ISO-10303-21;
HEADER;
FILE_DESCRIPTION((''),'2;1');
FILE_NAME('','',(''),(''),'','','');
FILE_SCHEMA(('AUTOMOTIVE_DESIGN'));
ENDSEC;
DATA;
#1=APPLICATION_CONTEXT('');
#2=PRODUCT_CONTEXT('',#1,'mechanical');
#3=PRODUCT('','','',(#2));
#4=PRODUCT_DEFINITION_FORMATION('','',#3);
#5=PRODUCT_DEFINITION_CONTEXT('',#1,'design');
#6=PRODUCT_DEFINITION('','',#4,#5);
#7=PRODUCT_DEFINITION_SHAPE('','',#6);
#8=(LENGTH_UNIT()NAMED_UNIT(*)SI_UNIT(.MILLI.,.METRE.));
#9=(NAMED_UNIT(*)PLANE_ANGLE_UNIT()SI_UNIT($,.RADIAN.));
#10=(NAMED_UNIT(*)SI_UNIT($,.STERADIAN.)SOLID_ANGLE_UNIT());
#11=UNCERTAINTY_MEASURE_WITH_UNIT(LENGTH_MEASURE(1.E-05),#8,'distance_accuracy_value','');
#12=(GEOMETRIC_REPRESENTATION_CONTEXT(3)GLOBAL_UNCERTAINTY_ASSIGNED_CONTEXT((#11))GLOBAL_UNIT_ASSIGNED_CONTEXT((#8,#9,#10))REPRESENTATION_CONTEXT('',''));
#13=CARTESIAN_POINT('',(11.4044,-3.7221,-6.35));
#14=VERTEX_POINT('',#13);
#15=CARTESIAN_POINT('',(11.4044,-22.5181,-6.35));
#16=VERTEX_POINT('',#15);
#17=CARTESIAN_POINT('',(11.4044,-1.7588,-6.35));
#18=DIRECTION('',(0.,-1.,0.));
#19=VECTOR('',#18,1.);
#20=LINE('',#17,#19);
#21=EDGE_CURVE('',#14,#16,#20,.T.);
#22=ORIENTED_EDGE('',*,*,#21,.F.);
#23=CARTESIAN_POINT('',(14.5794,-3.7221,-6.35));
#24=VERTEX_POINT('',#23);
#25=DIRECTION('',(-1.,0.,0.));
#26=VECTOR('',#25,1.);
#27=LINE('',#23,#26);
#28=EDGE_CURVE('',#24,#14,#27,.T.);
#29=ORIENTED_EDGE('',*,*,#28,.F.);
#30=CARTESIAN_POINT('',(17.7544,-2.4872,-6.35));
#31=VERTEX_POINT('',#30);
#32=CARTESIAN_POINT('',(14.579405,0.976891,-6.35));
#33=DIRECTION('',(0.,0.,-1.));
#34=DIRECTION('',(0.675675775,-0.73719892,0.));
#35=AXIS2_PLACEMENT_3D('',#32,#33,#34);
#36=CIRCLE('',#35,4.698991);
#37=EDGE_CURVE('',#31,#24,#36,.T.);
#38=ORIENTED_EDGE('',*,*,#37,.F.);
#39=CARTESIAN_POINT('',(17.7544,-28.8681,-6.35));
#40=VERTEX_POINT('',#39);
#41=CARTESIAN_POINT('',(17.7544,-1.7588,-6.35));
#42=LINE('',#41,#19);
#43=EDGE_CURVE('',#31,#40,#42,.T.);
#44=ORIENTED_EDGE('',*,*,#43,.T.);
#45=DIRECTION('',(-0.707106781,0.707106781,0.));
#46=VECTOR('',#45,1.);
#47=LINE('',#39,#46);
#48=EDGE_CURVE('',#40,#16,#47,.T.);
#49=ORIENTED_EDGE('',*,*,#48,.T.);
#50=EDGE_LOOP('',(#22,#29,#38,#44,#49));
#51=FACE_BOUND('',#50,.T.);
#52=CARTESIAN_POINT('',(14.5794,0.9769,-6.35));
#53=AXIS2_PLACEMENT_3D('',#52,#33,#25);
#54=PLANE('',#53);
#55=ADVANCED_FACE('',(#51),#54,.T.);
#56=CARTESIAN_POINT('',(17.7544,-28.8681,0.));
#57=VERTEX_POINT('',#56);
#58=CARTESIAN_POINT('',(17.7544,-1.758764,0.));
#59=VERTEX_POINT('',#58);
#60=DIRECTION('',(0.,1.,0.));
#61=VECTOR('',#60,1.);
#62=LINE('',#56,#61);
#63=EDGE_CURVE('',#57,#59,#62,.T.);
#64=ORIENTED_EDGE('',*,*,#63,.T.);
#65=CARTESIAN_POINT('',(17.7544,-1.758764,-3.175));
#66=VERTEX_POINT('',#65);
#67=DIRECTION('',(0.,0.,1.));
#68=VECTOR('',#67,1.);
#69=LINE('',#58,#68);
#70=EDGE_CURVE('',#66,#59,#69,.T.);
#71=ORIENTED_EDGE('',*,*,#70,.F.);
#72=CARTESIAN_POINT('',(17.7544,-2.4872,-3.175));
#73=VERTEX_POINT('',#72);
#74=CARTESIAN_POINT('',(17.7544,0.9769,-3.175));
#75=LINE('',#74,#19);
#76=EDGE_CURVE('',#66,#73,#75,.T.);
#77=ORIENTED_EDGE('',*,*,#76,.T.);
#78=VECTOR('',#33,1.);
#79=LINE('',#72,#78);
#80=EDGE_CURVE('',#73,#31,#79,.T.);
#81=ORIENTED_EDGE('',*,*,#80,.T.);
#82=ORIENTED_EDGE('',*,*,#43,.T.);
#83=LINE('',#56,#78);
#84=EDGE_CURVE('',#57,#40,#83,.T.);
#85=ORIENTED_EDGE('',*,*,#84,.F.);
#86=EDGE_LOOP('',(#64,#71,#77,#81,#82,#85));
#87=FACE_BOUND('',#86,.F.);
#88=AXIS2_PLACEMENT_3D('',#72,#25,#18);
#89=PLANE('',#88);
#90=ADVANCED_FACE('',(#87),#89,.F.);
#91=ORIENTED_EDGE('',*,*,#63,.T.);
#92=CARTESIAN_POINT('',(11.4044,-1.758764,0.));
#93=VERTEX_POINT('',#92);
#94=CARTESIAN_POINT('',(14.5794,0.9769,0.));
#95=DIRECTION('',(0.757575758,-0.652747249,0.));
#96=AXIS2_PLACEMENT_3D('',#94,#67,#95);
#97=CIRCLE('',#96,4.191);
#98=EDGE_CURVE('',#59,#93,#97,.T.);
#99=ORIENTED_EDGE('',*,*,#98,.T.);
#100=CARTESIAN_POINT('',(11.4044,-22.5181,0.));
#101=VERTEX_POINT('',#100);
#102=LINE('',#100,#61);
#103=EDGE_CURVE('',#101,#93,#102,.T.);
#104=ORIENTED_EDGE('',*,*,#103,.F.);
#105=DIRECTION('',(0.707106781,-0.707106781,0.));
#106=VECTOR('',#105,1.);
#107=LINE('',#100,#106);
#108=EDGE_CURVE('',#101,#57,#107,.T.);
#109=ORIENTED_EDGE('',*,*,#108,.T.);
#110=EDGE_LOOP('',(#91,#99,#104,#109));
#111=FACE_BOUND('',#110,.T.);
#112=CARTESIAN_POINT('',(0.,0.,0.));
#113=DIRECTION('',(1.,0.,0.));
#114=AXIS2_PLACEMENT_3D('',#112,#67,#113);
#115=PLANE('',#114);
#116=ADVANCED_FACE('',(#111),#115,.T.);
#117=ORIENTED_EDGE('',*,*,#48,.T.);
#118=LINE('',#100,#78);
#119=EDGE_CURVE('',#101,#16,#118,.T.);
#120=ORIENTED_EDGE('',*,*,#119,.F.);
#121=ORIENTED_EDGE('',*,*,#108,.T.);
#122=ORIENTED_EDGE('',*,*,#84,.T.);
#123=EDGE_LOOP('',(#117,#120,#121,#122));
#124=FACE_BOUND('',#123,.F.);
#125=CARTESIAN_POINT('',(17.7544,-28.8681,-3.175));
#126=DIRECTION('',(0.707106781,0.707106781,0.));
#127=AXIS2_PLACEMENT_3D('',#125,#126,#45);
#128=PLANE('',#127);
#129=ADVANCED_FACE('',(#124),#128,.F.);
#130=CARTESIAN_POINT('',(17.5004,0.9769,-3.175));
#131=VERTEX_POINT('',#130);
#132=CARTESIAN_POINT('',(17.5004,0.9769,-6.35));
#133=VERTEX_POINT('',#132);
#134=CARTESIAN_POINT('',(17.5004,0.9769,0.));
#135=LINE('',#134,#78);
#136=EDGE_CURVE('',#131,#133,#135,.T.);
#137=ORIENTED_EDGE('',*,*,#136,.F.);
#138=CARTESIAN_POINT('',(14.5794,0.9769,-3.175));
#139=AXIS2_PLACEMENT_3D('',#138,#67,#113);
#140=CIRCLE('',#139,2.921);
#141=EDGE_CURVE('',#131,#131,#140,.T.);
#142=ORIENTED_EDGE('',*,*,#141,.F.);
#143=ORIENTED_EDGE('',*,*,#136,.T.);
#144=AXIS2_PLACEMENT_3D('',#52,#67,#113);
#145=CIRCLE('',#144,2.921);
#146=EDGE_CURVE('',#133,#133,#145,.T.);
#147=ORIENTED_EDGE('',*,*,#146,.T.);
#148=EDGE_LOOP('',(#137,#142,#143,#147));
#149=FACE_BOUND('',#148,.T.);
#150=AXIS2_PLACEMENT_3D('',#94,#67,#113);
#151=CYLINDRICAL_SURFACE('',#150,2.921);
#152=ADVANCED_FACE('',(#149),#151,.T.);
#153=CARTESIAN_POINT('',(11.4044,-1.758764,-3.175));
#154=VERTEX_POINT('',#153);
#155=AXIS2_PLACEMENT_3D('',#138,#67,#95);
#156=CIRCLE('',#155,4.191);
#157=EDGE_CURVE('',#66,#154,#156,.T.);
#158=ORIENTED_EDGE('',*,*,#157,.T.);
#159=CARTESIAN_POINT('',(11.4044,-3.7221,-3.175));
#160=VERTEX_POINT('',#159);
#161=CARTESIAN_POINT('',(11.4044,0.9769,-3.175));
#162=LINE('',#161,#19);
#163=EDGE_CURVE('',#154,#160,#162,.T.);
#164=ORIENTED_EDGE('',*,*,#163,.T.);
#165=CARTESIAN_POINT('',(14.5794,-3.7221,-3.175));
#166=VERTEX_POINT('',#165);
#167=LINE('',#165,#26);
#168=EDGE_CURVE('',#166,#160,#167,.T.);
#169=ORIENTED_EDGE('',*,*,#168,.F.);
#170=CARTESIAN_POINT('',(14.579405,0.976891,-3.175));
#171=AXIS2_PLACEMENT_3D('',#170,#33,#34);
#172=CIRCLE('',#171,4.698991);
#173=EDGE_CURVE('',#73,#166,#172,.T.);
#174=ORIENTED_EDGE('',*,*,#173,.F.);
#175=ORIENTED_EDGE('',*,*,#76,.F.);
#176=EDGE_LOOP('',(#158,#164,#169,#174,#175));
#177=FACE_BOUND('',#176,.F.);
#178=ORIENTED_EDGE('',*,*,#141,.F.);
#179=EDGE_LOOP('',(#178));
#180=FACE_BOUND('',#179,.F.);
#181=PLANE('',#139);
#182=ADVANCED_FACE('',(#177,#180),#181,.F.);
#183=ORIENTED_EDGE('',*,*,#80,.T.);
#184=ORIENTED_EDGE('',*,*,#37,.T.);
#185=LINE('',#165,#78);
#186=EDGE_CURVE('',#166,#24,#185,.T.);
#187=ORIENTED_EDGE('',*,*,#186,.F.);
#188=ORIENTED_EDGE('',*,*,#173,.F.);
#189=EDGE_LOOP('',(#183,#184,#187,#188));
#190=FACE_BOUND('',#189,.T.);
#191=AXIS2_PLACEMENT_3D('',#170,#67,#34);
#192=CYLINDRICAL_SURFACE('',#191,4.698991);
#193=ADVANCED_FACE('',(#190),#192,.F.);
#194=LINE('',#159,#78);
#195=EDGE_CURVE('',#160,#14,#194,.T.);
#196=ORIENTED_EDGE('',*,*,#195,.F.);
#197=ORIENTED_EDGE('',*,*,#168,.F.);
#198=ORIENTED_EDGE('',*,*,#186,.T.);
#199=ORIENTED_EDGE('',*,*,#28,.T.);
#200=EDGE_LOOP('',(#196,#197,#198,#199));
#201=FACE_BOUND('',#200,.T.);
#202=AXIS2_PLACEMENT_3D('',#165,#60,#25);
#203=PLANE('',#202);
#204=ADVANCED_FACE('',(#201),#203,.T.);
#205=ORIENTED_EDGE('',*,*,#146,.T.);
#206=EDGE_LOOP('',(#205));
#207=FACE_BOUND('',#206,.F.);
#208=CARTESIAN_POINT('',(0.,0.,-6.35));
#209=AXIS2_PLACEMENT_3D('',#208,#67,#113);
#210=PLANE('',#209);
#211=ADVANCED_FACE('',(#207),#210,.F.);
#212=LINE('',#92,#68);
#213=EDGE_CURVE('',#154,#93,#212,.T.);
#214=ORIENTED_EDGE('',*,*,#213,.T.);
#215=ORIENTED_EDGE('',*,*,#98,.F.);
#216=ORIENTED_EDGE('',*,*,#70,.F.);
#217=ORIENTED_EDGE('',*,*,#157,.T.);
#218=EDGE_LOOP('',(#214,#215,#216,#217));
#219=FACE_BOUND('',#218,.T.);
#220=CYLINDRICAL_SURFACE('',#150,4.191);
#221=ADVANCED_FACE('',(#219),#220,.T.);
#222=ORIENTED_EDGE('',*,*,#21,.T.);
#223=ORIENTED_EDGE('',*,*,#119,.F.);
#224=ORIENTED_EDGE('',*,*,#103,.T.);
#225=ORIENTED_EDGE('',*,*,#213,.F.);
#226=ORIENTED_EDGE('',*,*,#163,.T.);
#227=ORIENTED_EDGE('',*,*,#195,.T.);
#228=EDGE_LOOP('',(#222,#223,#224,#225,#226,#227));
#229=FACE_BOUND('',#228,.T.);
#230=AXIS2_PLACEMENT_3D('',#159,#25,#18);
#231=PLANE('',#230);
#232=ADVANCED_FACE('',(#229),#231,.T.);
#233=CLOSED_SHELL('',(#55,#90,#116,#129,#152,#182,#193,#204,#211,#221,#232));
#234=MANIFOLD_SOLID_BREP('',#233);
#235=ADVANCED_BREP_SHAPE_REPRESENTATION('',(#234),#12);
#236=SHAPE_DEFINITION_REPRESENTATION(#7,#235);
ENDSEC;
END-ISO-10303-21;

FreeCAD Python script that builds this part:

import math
import FreeCAD as App
import Part
import Sketcher
Q = App.Units.Quantity

doc = App.newDocument("Part")
body = doc.addObject("PartDesign::Body", "Body")

# Sketch on XY plane
sketch1 = body.newObject("Sketcher::SketchObject", "Sketch")
sketch1.AttachmentSupport = (doc.getObject("XY_Plane"), [""])
sketch1.MapMode = "FlatFace"
sketch1.addGeometry(Part.Circle(App.Vector(14.5794, 0.9769, 0), App.Vector(0, 0, 1), 2.921), False)
sketch1.addConstraint([
    Sketcher.Constraint("Diameter", 0, Q("0.23 in")),
    Sketcher.Constraint("DistanceX", -1, 1, 0, 3, Q("0.574 in")),
    Sketcher.Constraint("DistanceY", -1, 1, 0, 3, 0.977),
])
pad1 = body.newObject("PartDesign::Pad", "Pad")
pad1.Profile = sketch1
pad1.Length = Q("0.25 in")
pad1.Reversed = True

# Sketch on XY plane
sketch2 = body.newObject("Sketcher::SketchObject", "Sketch001")
sketch2.AttachmentSupport = (doc.getObject("XY_Plane"), [""])
sketch2.MapMode = "FlatFace"
sketch2.addGeometry(Part.Circle(App.Vector(14.5794, 0.9769, 0), App.Vector(0, 0, 1), 4.191), False)
sketch2.addConstraint([
    Sketcher.Constraint("Diameter", 0, Q("0.33 in")),
    Sketcher.Constraint("DistanceX", -1, 1, 0, 3, Q("0.574 in")),
    Sketcher.Constraint("DistanceY", -1, 1, 0, 3, 0.977),
])
pad2 = body.newObject("PartDesign::Pad", "Pad001")
pad2.Profile = sketch2
pad2.Length = Q("0.125 in")
pad2.Reversed = True

# Sketch on XY plane
sketch3 = body.newObject("Sketcher::SketchObject", "Sketch002")
sketch3.AttachmentSupport = (doc.getObject("XY_Plane"), [""])
sketch3.MapMode = "FlatFace"
sketch3.addGeometry([
    Part.LineSegment(App.Vector(11.4044, 0.9769, 0), App.Vector(11.4044, -22.5181, 0)),
    Part.LineSegment(App.Vector(11.4044, -22.5181, 0), App.Vector(17.7544, -28.8681, 0)),
    Part.LineSegment(App.Vector(17.7544, -28.8681, 0), App.Vector(17.7544, 0.9769, 0)),
    Part.ArcOfCircle(Part.Circle(App.Vector(14.5794, 0.9769, 0), App.Vector(0, 0, 1), 3.175), math.radians(180), math.radians(360)),
], False)
sketch3.addConstraint([
    Sketcher.Constraint("Coincident", 0, 2, 1, 1),
    Sketcher.Constraint("Coincident", 1, 2, 2, 1),
    Sketcher.Constraint("Tangent", 2, 2, 3, 2),
    Sketcher.Constraint("Tangent", 3, 1, 0, 1),
    Sketcher.Constraint("Vertical", 0),
    Sketcher.Constraint("Vertical", 2),
    Sketcher.Constraint("Radius", 3, Q("0.125 in")),
    Sketcher.Constraint("DistanceY", 1, 2, 0, 2, Q("0.25 in")),
    Sketcher.Constraint("DistanceY", 0, 2, 0, 1, Q("0.925 in")),
    Sketcher.Constraint("DistanceX", -1, 1, 3, 3, Q("0.574 in")),
    Sketcher.Constraint("DistanceY", -1, 1, 3, 3, 0.977),
])
pad3 = body.newObject("PartDesign::Pad", "Pad002")
pad3.Profile = sketch3
pad3.Length = Q("0.125 in")
pad3.Reversed = True

# Sketch on XY plane
sketch4 = body.newObject("Sketcher::SketchObject", "Sketch003")
sketch4.AttachmentSupport = (doc.getObject("XY_Plane"), [""])
sketch4.MapMode = "FlatFace"
sketch4.AttachmentOffset = App.Placement(App.Vector(0, 0, -0.125 * 25.4), App.Rotation())
sketch4.addGeometry([
    Part.ArcOfCircle(Part.Circle(App.Vector(14.5794, 0.9769, 0), App.Vector(0, 0, 1), 4.699), math.radians(-90), math.radians(-47.493373)),  # 0
    Part.LineSegment(App.Vector(17.7544, -2.4872, 0), App.Vector(17.7544, -28.8681, 0)),  # 1
    Part.LineSegment(App.Vector(17.7544, -28.8681, 0), App.Vector(11.4044, -22.5181, 0)),  # 2
    Part.LineSegment(App.Vector(11.4044, -22.5181, 0), App.Vector(11.4044, -3.7221, 0)),  # 3
    Part.LineSegment(App.Vector(11.4044, -3.7221, 0), App.Vector(14.5794, -3.7221, 0)),  # 4
], False)
sketch4.addConstraint([
    Sketcher.Constraint("Coincident", 0, 2, 1, 1),
    Sketcher.Constraint("Coincident", 1, 2, 2, 1),
    Sketcher.Constraint("Coincident", 2, 2, 3, 1),
    Sketcher.Constraint("Coincident", 3, 2, 4, 1),
    Sketcher.Constraint("Tangent", 4, 2, 0, 1),
    Sketcher.Constraint("Vertical", 1),
    Sketcher.Constraint("Vertical", 3),
    Sketcher.Constraint("Horizontal", 4),
    Sketcher.Constraint("Radius", 0, Q("0.185 in")),
    Sketcher.Constraint("Angle", 2, Q("135 deg")),
    Sketcher.Constraint("DistanceY", 3, 1, 3, 2, Q("0.74 in")),
    Sketcher.Constraint("DistanceX", 4, 1, 4, 2, Q("0.125 in")),
    Sketcher.Constraint("DistanceX", 2, 2, 1, 2, Q("0.25 in")),
    Sketcher.Constraint("DistanceX", -1, 1, 0, 3, Q("0.574 in")),
    Sketcher.Constraint("DistanceY", -1, 1, 0, 3, 0.977),
])
pad4 = body.newObject("PartDesign::Pad", "Pad003")
pad4.Profile = sketch4
pad4.Length = Q("0.125 in")
pad4.Reversed = True

doc.recompute()
